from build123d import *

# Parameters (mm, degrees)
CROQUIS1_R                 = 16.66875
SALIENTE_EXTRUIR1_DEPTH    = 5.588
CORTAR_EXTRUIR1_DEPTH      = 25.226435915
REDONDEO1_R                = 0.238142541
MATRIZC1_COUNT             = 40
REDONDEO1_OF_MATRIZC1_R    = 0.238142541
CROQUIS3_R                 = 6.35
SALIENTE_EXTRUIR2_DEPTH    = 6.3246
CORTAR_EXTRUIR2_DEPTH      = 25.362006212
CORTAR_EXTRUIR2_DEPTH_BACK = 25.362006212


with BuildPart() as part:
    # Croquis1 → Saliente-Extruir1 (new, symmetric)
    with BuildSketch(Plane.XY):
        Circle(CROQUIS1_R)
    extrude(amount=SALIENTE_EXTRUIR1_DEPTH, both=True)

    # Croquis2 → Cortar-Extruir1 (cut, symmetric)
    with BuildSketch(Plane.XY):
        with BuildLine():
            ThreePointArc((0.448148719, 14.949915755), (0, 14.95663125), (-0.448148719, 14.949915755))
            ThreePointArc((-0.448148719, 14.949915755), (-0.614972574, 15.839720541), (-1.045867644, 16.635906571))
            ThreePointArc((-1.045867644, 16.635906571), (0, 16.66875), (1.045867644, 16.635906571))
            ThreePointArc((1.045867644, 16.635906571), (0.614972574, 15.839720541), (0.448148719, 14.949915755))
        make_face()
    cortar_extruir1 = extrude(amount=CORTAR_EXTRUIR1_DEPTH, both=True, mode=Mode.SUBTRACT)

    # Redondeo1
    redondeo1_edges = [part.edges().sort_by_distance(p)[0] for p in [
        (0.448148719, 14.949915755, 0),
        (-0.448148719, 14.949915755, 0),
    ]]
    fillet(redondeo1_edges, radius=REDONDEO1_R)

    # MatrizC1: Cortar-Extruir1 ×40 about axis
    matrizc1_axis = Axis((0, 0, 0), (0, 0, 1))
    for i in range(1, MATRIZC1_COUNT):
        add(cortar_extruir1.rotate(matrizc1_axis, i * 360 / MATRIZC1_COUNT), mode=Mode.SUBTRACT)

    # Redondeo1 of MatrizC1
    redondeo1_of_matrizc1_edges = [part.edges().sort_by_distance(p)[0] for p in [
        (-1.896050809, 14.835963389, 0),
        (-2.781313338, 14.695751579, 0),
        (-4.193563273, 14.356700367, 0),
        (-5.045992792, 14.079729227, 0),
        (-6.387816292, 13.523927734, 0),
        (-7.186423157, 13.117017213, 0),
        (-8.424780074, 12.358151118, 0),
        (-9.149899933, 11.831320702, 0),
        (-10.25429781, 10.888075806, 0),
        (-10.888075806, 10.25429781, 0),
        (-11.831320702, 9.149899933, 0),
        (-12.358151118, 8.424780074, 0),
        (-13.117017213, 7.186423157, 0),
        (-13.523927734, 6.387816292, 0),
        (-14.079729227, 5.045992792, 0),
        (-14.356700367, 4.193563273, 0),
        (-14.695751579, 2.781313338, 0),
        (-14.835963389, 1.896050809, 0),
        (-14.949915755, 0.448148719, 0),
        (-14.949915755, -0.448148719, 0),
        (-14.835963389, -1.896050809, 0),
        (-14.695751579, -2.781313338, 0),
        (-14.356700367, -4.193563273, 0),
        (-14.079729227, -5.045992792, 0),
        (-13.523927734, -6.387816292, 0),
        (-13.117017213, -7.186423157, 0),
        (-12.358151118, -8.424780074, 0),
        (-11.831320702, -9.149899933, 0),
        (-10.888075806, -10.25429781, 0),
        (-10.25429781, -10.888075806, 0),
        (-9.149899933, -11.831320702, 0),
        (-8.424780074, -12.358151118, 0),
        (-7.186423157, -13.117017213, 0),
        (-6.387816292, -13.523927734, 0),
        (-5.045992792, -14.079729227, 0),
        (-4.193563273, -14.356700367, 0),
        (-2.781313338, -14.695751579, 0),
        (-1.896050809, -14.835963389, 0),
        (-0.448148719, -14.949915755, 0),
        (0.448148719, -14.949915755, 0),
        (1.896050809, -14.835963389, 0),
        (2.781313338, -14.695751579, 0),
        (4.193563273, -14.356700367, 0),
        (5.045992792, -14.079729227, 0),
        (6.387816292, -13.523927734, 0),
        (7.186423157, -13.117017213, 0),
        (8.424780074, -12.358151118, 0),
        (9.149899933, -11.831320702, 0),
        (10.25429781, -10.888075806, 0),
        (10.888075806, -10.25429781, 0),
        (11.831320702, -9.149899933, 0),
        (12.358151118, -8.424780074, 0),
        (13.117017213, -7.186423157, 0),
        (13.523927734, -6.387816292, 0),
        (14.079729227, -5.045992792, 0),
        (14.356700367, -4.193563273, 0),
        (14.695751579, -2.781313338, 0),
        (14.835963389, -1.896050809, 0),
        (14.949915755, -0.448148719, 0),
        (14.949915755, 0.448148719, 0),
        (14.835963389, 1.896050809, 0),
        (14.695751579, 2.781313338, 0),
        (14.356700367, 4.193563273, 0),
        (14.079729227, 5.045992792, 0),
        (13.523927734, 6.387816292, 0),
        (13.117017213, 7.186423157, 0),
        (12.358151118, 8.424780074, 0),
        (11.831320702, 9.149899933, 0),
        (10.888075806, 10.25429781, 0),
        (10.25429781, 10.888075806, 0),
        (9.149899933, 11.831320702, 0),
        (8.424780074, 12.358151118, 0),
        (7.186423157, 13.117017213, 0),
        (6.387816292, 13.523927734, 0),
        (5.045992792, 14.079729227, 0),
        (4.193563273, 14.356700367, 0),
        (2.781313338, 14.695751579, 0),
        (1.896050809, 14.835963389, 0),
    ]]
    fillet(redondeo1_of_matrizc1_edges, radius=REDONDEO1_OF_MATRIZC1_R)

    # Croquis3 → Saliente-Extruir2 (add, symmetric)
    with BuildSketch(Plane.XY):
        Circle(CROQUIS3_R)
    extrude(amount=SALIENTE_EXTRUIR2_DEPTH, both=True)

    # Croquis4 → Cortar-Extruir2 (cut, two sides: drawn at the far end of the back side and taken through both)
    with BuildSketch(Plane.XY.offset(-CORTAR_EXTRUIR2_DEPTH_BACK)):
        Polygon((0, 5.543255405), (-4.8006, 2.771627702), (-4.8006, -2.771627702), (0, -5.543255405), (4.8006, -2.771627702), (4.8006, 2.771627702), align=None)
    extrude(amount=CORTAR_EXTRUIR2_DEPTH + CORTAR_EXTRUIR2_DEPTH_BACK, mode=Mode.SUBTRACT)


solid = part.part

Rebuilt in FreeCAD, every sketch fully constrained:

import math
import FreeCAD as App
import Part
import Sketcher

V = App.Vector
Q = App.Units.Quantity


def edges_at(feature, points):
    """Names of the edges that pass closest to the given points."""
    edges = feature.Shape.Edges
    near = lambda p: min(range(len(edges)), key=lambda i: edges[i].distToShape(Part.Vertex(*p))[0])
    return sorted({f"Edge{near(p) + 1}" for p in points})


def add_polygon(sketch, points):
    """Adds a closed chain of lines whose ends are joined by coincident constraints."""
    first, n = sketch.GeometryCount, len(points)
    for a, b in zip(points, points[1:] + points[:1]):
        sketch.addGeometry(Part.LineSegment(App.Vector(*a, 0), App.Vector(*b, 0)), False)
    for i in range(n):
        sketch.addConstraint(Sketcher.Constraint("Coincident", first + i, 2, first + (i + 1) % n, 1))

doc = App.newDocument("Part")
body = doc.addObject("PartDesign::Body", "Body")

sketch1 = doc.addObject("Sketcher::SketchObject", "Sketch")
body.addObject(sketch1)
sketch1.AttachmentSupport = (doc.XY_Plane, [""])
sketch1.MapMode = "FlatFace"
sketch1.addGeometry(Part.Circle(V(0, 0, 0), V(0, 0, 1), 16.66875), False)
sketch1.addConstraint([
    Sketcher.Constraint("Coincident", 0, 3, -1, 1),
    Sketcher.Constraint("Diameter", 0, Q("1.3125 in")),
])
pad1 = doc.addObject("PartDesign::Pad", "Pad")
body.addObject(pad1)
pad1.Profile = sketch1
pad1.Length = Q("0.44 in")
pad1.Midplane = True

sketch2 = doc.addObject("Sketcher::SketchObject", "Sketch001")
body.addObject(sketch2)
sketch2.AttachmentSupport = (doc.XY_Plane, [""])
sketch2.MapMode = "FlatFace"
sketch2.addGeometry([
    Part.ArcOfCircle(Part.Circle(V(0, -0.000001, 0), V(0, 0, 1), 14.956632), math.radians(88.282977), math.radians(91.717023)),
    Part.ArcOfCircle(Part.Circle(V(3.372087, 14.862266, 0), V(0, 0, 1), 2.925252), math.radians(142.676065), math.radians(178.282977)),
    Part.ArcOfCircle(Part.Circle(V(0, 0, 0), V(0, 0, 1), 16.66875), math.radians(86.402658), math.radians(93.597342)),
    Part.ArcOfCircle(Part.Circle(V(-3.372087, 14.862266, 0), V(0, 0, 1), 2.925252), math.radians(1.717023), math.radians(37.323935)),
], False)
sketch2.addConstraint([
    Sketcher.Constraint("Coincident", 0, 1, 1, 2),
    Sketcher.Constraint("Coincident", 1, 1, 2, 1),
    Sketcher.Constraint("Coincident", 2, 2, 3, 2),
    Sketcher.Constraint("Coincident", 3, 1, 0, 2),
    Sketcher.Constraint("Coincident", 0, 3, -1, 1),
    Sketcher.Constraint("Coincident", 2, 3, -1, 1),
    Sketcher.Constraint("Equal", 1, 3),
    Sketcher.Constraint("Symmetric", 1, 3, 3, 3, -2),
    Sketcher.Constraint("Radius", 2, Q("0.65625 in")),
    Sketcher.Constraint("Radius", 0, 14.956632),
    Sketcher.Constraint("Radius", 1, 2.925252),
    Sketcher.Constraint("DistanceX", -1, 1, 0, 1, 0.448149),
    Sketcher.Constraint("DistanceY", 1, 3, 0, 1, 0.08765),
])
pocket1 = doc.addObject("PartDesign::Pocket", "Pocket")
body.addObject(pocket1)
pocket1.Profile = sketch2
pocket1.Length = 50.452872
pocket1.Midplane = True
doc.recompute()

fillet = doc.addObject("PartDesign::Fillet", "Fillet")
body.addObject(fillet)
fillet.Base = (pocket1, edges_at(pocket1, [(0.448, 14.95, 0), (-0.448, 14.95, 0)]))
fillet.Radius = 0.238143
doc.recompute()

polarpattern = doc.addObject("PartDesign::PolarPattern", "PolarPattern")
body.addObject(polarpattern)
polarpattern.Originals = [pocket1]
polarpattern.Axis = (doc.Z_Axis, [""])
polarpattern.Angle = 360
polarpattern.Occurrences = 40
body.Tip = polarpattern
doc.recompute()

fillet2 = doc.addObject("PartDesign::Fillet", "Fillet001")
body.addObject(fillet2)
fillet2.Base = (polarpattern, edges_at(polarpattern, [
    (-1.896, 14.836, 0),
    (-2.781, 14.696, 0),
    (-4.194, 14.357, 0),
    (-5.046, 14.08, 0),
    (-6.388, 13.524, 0),
    (-7.186, 13.117, 0),
    (-8.425, 12.358, 0),
    (-9.15, 11.831, 0),
    (-10.254, 10.888, 0),
    (-10.888, 10.254, 0),
    (-11.831, 9.15, 0),
    (-12.358, 8.425, 0),
    (-13.117, 7.186, 0),
    (-13.524, 6.388, 0),
    (-14.08, 5.046, 0),
    (-14.357, 4.194, 0),
    (-14.696, 2.781, 0),
    (-14.836, 1.896, 0),
    (-14.95, 0.448, 0),
    (-14.95, -0.448, 0),
    (-14.836, -1.896, 0),
    (-14.696, -2.781, 0),
    (-14.357, -4.194, 0),
    (-14.08, -5.046, 0),
    (-13.524, -6.388, 0),
    (-13.117, -7.186, 0),
    (-12.358, -8.425, 0),
    (-11.831, -9.15, 0),
    (-10.888, -10.254, 0),
    (-10.254, -10.888, 0),
    (-9.15, -11.831, 0),
    (-8.425, -12.358, 0),
    (-7.186, -13.117, 0),
    (-6.388, -13.524, 0),
    (-5.046, -14.08, 0),
    (-4.194, -14.357, 0),
    (-2.781, -14.696, 0),
    (-1.896, -14.836, 0),
    (-0.448, -14.95, 0),
    (0.448, -14.95, 0),
    (1.896, -14.836, 0),
    (2.781, -14.696, 0),
    (4.194, -14.357, 0),
    (5.046, -14.08, 0),
    (6.388, -13.524, 0),
    (7.186, -13.117, 0),
    (8.425, -12.358, 0),
    (9.15, -11.831, 0),
    (10.254, -10.888, 0),
    (10.888, -10.254, 0),
    (11.831, -9.15, 0),
    (12.358, -8.425, 0),
    (13.117, -7.186, 0),
    (13.524, -6.388, 0),
    (14.08, -5.046, 0),
    (14.357, -4.194, 0),
    (14.696, -2.781, 0),
    (14.836, -1.896, 0),
    (14.95, -0.448, 0),
    (14.95, 0.448, 0),
    (14.836, 1.896, 0),
    (14.696, 2.781, 0),
    (14.357, 4.194, 0),
    (14.08, 5.046, 0),
    (13.524, 6.388, 0),
    (13.117, 7.186, 0),
    (12.358, 8.425, 0),
    (11.831, 9.15, 0),
    (10.888, 10.254, 0),
    (10.254, 10.888, 0),
    (9.15, 11.831, 0),
    (8.425, 12.358, 0),
    (7.186, 13.117, 0),
    (6.388, 13.524, 0),
    (5.046, 14.08, 0),
    (4.194, 14.357, 0),
    (2.781, 14.696, 0),
    (1.896, 14.836, 0),
]))
fillet2.Radius = 0.238143

sketch3 = doc.addObject("Sketcher::SketchObject", "Sketch002")
body.addObject(sketch3)
sketch3.AttachmentSupport = (doc.XY_Plane, [""])
sketch3.MapMode = "FlatFace"
sketch3.addGeometry(Part.Circle(V(0, 0, 0), V(0, 0, 1), 6.35), False)
sketch3.addConstraint([
    Sketcher.Constraint("Coincident", 0, 3, -1, 1),
    Sketcher.Constraint("Diameter", 0, Q("0.5 in")),
])
pad2 = doc.addObject("PartDesign::Pad", "Pad001")
body.addObject(pad2)
pad2.Profile = sketch3
pad2.Length = Q("0.498 in")
pad2.Midplane = True

sketch4 = doc.addObject("Sketcher::SketchObject", "Sketch003")
body.addObject(sketch4)
sketch4.AttachmentSupport = (doc.XY_Plane, [""])
sketch4.MapMode = "FlatFace"
add_polygon(sketch4, [(0, 5.543255), (-4.8006, 2.771628), (-4.8006, -2.771628), (0, -5.543255), (4.8006, -2.771628), (4.8006, 2.771628)])
sketch4.addConstraint([
    Sketcher.Constraint("Vertical", 1),
    Sketcher.Constraint("Vertical", 4),
    Sketcher.Constraint("Symmetric", 0, 2, 3, 2, -1, 1),
    Sketcher.Constraint("Symmetric", 2, 2, 5, 2, -1, 1),
    Sketcher.Constraint("PointOnObject", 2, 2, -2),
    Sketcher.Constraint("Parallel", 2, 5),
    Sketcher.Constraint("Horizontal", 1, 2, 3, 2),
    Sketcher.Constraint("Angle", 0, Q("-150 deg")),
    Sketcher.Constraint("DistanceX", 0, 2, -1, 1, Q("0.189 in")),
    Sketcher.Constraint("DistanceY", 1, 2, 1, 1, 5.543255),
])
pocket2 = doc.addObject("PartDesign::Pocket", "Pocket001")
body.addObject(pocket2)
pocket2.Profile = sketch4
pocket2.Type = "ThroughAll"
pocket2.Midplane = True

doc.recompute()
